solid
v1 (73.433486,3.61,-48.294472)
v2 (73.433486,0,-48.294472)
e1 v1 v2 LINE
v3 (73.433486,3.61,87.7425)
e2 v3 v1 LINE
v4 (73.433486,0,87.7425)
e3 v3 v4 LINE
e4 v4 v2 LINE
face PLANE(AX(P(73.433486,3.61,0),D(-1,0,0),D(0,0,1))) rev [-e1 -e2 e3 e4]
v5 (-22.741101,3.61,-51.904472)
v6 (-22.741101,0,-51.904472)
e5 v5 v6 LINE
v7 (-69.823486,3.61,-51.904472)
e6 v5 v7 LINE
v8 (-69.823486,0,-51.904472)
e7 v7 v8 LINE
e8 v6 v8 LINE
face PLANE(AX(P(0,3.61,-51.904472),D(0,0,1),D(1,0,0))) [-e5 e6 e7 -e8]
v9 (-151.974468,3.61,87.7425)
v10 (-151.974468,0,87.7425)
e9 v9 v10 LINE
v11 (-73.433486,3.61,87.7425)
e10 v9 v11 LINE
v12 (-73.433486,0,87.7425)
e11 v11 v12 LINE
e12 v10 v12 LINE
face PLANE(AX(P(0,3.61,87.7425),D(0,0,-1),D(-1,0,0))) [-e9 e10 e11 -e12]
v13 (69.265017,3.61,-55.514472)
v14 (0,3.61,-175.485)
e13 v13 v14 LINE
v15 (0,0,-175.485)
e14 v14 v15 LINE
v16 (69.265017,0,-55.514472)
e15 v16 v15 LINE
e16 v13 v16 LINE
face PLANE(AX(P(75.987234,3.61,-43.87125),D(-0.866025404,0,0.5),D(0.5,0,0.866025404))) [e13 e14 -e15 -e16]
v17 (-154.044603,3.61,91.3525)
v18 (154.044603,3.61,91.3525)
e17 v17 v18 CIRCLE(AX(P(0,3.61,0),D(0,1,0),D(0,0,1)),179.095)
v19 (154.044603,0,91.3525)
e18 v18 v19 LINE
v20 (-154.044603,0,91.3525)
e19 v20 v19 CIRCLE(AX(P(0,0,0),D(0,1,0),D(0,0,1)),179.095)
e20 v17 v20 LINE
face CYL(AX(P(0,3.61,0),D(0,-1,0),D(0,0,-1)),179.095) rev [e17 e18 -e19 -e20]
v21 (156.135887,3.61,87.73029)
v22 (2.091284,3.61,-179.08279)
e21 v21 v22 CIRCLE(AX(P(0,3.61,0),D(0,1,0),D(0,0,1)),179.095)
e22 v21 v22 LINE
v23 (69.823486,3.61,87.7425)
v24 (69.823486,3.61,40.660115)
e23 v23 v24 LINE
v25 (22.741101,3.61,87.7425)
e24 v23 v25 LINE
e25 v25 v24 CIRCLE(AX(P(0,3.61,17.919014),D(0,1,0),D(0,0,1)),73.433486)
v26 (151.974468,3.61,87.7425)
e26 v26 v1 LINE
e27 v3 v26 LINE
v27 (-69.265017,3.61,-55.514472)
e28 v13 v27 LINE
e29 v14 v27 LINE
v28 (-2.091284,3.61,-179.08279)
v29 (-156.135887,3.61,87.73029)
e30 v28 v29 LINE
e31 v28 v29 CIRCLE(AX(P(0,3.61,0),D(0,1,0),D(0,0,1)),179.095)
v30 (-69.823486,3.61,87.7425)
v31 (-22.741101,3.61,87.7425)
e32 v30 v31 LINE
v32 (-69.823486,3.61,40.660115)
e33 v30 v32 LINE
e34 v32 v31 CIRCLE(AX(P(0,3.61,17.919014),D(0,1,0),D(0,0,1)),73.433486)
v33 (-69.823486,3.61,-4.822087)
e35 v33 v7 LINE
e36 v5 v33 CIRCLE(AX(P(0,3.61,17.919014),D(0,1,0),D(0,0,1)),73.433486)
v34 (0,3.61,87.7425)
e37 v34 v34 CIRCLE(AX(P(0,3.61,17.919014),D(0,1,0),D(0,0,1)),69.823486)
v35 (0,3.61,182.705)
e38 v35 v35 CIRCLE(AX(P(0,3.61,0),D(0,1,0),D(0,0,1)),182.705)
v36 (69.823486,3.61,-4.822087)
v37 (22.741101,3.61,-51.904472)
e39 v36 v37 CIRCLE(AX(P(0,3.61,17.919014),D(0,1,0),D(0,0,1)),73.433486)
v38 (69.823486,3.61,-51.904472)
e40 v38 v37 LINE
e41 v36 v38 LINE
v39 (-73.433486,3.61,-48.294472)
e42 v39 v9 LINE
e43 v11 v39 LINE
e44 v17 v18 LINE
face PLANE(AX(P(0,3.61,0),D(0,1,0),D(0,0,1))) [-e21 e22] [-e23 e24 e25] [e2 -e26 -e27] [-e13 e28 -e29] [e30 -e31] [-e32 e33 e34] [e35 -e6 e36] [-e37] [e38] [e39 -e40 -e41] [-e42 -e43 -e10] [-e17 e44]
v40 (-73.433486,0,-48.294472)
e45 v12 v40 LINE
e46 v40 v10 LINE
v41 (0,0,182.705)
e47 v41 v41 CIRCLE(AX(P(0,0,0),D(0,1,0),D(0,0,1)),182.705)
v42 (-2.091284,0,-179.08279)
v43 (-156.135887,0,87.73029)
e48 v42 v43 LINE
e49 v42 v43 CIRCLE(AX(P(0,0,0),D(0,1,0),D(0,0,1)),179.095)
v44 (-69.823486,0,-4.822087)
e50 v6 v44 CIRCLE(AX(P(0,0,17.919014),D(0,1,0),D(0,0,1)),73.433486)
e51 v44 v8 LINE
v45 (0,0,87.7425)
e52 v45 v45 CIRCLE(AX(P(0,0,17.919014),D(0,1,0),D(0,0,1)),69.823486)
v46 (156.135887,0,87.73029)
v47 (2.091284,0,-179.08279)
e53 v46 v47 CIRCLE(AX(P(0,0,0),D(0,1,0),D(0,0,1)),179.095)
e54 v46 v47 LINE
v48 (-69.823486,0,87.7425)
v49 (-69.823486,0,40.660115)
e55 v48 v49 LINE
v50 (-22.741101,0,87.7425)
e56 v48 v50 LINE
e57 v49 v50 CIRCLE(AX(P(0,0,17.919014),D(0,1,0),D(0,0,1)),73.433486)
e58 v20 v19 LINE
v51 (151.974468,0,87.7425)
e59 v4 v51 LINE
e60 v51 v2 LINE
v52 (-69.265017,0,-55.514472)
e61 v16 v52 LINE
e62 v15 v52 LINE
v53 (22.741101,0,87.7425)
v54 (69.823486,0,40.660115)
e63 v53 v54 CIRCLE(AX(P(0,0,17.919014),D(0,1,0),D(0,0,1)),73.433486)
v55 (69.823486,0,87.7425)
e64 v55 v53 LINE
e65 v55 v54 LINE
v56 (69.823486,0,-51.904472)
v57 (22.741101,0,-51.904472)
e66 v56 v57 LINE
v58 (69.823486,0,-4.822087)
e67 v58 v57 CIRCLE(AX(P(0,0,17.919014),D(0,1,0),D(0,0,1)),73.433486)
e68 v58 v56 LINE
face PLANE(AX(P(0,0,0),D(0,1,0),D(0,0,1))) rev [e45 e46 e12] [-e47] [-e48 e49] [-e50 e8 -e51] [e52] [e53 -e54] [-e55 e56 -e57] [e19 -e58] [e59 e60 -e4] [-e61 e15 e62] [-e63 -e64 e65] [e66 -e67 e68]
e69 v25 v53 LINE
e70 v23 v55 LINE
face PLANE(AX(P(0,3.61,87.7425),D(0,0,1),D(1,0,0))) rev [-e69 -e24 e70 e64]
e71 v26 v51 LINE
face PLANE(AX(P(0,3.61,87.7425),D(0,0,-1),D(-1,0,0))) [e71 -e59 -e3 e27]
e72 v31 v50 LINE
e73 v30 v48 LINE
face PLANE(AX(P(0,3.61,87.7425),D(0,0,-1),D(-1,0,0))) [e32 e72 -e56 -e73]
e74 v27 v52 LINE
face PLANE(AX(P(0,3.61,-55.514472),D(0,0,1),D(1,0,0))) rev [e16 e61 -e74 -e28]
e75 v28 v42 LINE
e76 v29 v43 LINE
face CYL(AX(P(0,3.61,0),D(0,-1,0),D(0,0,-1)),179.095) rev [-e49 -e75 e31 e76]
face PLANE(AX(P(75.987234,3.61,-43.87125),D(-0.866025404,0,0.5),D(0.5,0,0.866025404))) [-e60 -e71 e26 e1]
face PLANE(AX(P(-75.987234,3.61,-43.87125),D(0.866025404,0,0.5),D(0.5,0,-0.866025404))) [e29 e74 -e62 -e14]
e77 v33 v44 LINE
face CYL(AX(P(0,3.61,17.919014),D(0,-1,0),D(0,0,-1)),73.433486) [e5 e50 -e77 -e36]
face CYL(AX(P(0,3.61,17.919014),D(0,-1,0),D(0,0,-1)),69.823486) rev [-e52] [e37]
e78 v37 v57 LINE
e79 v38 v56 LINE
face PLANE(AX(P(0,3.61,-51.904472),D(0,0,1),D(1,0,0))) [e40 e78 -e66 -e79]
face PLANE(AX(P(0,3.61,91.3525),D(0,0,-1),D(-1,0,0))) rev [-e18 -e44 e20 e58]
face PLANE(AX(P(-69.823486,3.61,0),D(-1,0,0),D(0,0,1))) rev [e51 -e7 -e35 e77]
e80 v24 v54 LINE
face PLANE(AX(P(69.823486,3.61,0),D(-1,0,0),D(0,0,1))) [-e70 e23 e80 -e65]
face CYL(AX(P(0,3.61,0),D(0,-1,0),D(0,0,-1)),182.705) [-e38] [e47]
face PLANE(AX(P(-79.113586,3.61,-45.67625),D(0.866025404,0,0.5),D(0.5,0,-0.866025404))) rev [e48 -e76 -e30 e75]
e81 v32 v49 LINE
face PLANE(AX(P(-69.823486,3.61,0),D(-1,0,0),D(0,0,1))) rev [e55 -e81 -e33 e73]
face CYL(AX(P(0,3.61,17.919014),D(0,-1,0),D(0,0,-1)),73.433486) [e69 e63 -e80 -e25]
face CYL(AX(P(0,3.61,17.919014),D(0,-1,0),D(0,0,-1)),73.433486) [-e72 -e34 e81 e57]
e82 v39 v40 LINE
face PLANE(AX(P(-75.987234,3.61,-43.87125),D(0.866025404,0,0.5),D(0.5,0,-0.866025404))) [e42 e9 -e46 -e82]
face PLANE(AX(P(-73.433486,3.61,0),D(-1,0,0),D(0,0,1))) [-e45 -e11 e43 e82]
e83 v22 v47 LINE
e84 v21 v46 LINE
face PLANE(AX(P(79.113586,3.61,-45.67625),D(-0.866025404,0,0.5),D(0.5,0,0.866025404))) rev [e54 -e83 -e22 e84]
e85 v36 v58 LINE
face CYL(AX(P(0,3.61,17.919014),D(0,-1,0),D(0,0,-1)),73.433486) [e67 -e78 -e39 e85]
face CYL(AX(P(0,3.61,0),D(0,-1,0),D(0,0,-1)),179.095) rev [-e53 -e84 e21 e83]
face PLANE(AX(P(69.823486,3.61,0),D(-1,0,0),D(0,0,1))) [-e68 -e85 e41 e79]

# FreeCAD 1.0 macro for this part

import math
import FreeCAD as App
import Part
import Sketcher
from FreeCAD import Vector
Q = App.Units.Quantity

doc = App.newDocument("Part")
body = doc.addObject("PartDesign::Body", "Body")

# Sketch on XZ plane
sketch1 = body.newObject("Sketcher::SketchObject", "Sketch")
sketch1.AttachmentSupport = (doc.getObject("XZ_Plane"), [""])
sketch1.MapMode = "FlatFace"
sketch1.addGeometry([
    Part.Circle(Vector(0, 0, 0), Vector(0, 0, 1), 182.705),  # 0
    Part.LineSegment(Vector(-2.091284, -179.08279, 0), Vector(-156.135887, 87.73029, 0)),  # 1
    Part.ArcOfCircle(Part.Circle(Vector(0, 0, 0), Vector(0, 0, 1), 179.095), math.radians(150.669055), math.radians(269.330945)),  # 2
    Part.LineSegment(Vector(-69.823486, -4.822087, 0), Vector(-69.823486, -51.904472, 0)),  # 3
    Part.LineSegment(Vector(-69.823486, -51.904472, 0), Vector(-22.741101, -51.904472, 0)),  # 4
    Part.ArcOfCircle(Part.Circle(Vector(0, 17.919014, 0), Vector(0, 0, 1), 73.433486), math.radians(-161.959873), math.radians(-108.040127)),  # 5
    Part.LineSegment(Vector(-73.433486, -48.294472, 0), Vector(-73.433486, 87.7425, 0)),  # 6
    Part.LineSegment(Vector(-73.433486, 87.7425, 0), Vector(-151.974468, 87.7425, 0)),  # 7
    Part.LineSegment(Vector(-151.974468, 87.7425, 0), Vector(-73.433486, -48.294472, 0)),  # 8
    Part.ArcOfCircle(Part.Circle(Vector(0, 17.919014, 0), Vector(0, 0, 1), 73.433486), math.radians(108.040127), math.radians(161.959873)),  # 9
    Part.LineSegment(Vector(-22.741101, 87.7425, 0), Vector(-69.823486, 87.7425, 0)),  # 10
    Part.LineSegment(Vector(-69.823486, 87.7425, 0), Vector(-69.823486, 40.660115, 0)),  # 11
    Part.LineSegment(Vector(69.265017, -55.514472, 0), Vector(-69.265017, -55.514472, 0)),  # 12
    Part.LineSegment(Vector(-69.265017, -55.514472, 0), Vector(0, -175.485, 0)),  # 13
    Part.LineSegment(Vector(0, -175.485, 0), Vector(69.265017, -55.514472, 0)),  # 14
    Part.ArcOfCircle(Part.Circle(Vector(0, 17.919014, 0), Vector(0, 0, 1), 73.433486), math.radians(-71.959873), math.radians(-18.040127)),  # 15
    Part.LineSegment(Vector(22.741101, -51.904472, 0), Vector(69.823486, -51.904472, 0)),  # 16
    Part.LineSegment(Vector(69.823486, -51.904472, 0), Vector(69.823486, -4.822087, 0)),  # 17
    Part.LineSegment(Vector(156.135887, 87.73029, 0), Vector(2.091284, -179.08279, 0)),  # 18
    Part.ArcOfCircle(Part.Circle(Vector(0, 0, 0), Vector(0, 0, 1), 179.095), math.radians(-89.330945), math.radians(29.330945)),  # 19
    Part.Circle(Vector(0, 17.919014, 0), Vector(0, 0, 1), 69.823486),  # 20
    Part.ArcOfCircle(Part.Circle(Vector(0, 17.919014, 0), Vector(0, 0, 1), 73.433486), math.radians(18.040127), math.radians(71.959873)),  # 21
    Part.LineSegment(Vector(69.823486, 40.660115, 0), Vector(69.823486, 87.7425, 0)),  # 22
    Part.LineSegment(Vector(69.823486, 87.7425, 0), Vector(22.741101, 87.7425, 0)),  # 23
    Part.LineSegment(Vector(-154.044603, 91.3525, 0), Vector(154.044603, 91.3525, 0)),  # 24
    Part.ArcOfCircle(Part.Circle(Vector(0, 0, 0), Vector(0, 0, 1), 179.095), math.radians(30.669055), math.radians(149.330945)),  # 25
    Part.LineSegment(Vector(73.433486, -48.294472, 0), Vector(151.974468, 87.7425, 0)),  # 26
    Part.LineSegment(Vector(151.974468, 87.7425, 0), Vector(73.433486, 87.7425, 0)),  # 27
    Part.LineSegment(Vector(73.433486, 87.7425, 0), Vector(73.433486, -48.294472, 0)),  # 28
], False)
sketch1.addConstraint([
    Sketcher.Constraint("Coincident", 1, 1, 2, 2),
    Sketcher.Constraint("Coincident", 2, 1, 1, 2),
    Sketcher.Constraint("Coincident", 3, 2, 4, 1),
    Sketcher.Constraint("Coincident", 4, 2, 5, 2),
    Sketcher.Constraint("Coincident", 5, 1, 3, 1),
    Sketcher.Constraint("Coincident", 6, 2, 7, 1),
    Sketcher.Constraint("Coincident", 7, 2, 8, 1),
    Sketcher.Constraint("Coincident", 8, 2, 6, 1),
    Sketcher.Constraint("Coincident", 9, 1, 10, 1),
    Sketcher.Constraint("Coincident", 10, 2, 11, 1),
    Sketcher.Constraint("Coincident", 11, 2, 9, 2),
    Sketcher.Constraint("Coincident", 12, 2, 13, 1),
    Sketcher.Constraint("Coincident", 13, 2, 14, 1),
    Sketcher.Constraint("Coincident", 14, 2, 12, 1),
    Sketcher.Constraint("Coincident", 15, 1, 16, 1),
    Sketcher.Constraint("Coincident", 16, 2, 17, 1),
    Sketcher.Constraint("Coincident", 17, 2, 15, 2),
    Sketcher.Constraint("Coincident", 18, 1, 19, 2),
    Sketcher.Constraint("Coincident", 19, 1, 18, 2),
    Sketcher.Constraint("Coincident", 21, 1, 22, 1),
    Sketcher.Constraint("Coincident", 22, 2, 23, 1),
    Sketcher.Constraint("Coincident", 23, 2, 21, 2),
    Sketcher.Constraint("Coincident", 24, 1, 25, 2),
    Sketcher.Constraint("Coincident", 25, 1, 24, 2),
    Sketcher.Constraint("Coincident", 26, 2, 27, 1),
    Sketcher.Constraint("Coincident", 27, 2, 28, 1),
    Sketcher.Constraint("Coincident", 28, 2, 26, 1),
    Sketcher.Constraint("Vertical", 3),
    Sketcher.Constraint("Horizontal", 4),
    Sketcher.Constraint("Vertical", 6),
    Sketcher.Constraint("Horizontal", 7),
    Sketcher.Constraint("Horizontal", 10),
    Sketcher.Constraint("Vertical", 11),
    Sketcher.Constraint("Horizontal", 12),
    Sketcher.Constraint("Horizontal", 16),
    Sketcher.Constraint("Vertical", 17),
    Sketcher.Constraint("Vertical", 22),
    Sketcher.Constraint("Horizontal", 23),
    Sketcher.Constraint("Horizontal", 24),
    Sketcher.Constraint("Horizontal", 27),
    Sketcher.Constraint("Vertical", 28),
    Sketcher.Constraint("Coincident", 0, 3, -1, 1),
    Sketcher.Constraint("Coincident", 2, 3, -1, 1),
    Sketcher.Constraint("Coincident", 19, 3, -1, 1),
    Sketcher.Constraint("Coincident", 25, 3, -1, 1),
    Sketcher.Constraint("Coincident", 9, 3, 5, 3),
    Sketcher.Constraint("Coincident", 15, 3, 5, 3),
    Sketcher.Constraint("Coincident", 20, 3, 5, 3),
    Sketcher.Constraint("Coincident", 21, 3, 5, 3),
    Sketcher.Constraint("Equal", 5, 9),
    Sketcher.Constraint("Equal", 9, 15),
    Sketcher.Constraint("Equal", 2, 19),
    Sketcher.Constraint("Equal", 15, 21),
    Sketcher.Constraint("Equal", 19, 25),
    Sketcher.Constraint("Symmetric", 4, 2, 15, 1, -2),
    Sketcher.Constraint("Symmetric", 10, 2, 22, 2, -2),
    Sketcher.Constraint("Symmetric", 7, 2, 26, 2, -2),
    Sketcher.Constraint("Symmetric", 8, 2, 28, 2, -2),
    Sketcher.Constraint("PointOnObject", 13, 2, -2),
    Sketcher.Constraint("Parallel", 1, 8),
    Sketcher.Constraint("Parallel", 8, 13),
    Sketcher.Constraint("Parallel", 14, 18),
    Sketcher.Constraint("Parallel", 18, 26),
    Sketcher.Constraint("Horizontal", 7, 2, 9, 1),
    Sketcher.Constraint("Horizontal", 5, 1, 17, 2),
    Sketcher.Constraint("Horizontal", 2, 1, 18, 1),
    Sketcher.Constraint("Vertical", 4, 2, 9, 1),
    Sketcher.Constraint("Vertical", 5, 1, 10, 2),
    Sketcher.Constraint("Equal", 23, 3),
    Sketcher.Constraint("Diameter", 0, 365.41),
    Sketcher.Constraint("Angle", 1, Q("120 deg")),
    Sketcher.Constraint("Radius", 2, 179.095),
    Sketcher.Constraint("Diameter", 20, 139.646972),
    Sketcher.Constraint("DistanceX", 6, 2, 5, 1, 3.61),
    Sketcher.Constraint("DistanceY", 3, 2, 8, 2, 3.61),
    Sketcher.Constraint("DistanceY", 12, 2, 3, 2, 3.61),
    Sketcher.Constraint("DistanceY", 7, 2, 24, 1, 3.61),
    Sketcher.Constraint("DistanceY", 13, 2, -1, 1, 175.485),
    Sketcher.Constraint("Radius", 5, 73.433486),
    Sketcher.Constraint("DistanceY", 6, 1, 6, 2, 136.036972),
    Sketcher.Constraint("DistanceY", -1, 1, 6, 2, 87.7425),
    Sketcher.Constraint("DistanceX", 2, 1, 6, 2, 82.702401),
])
pad1 = body.newObject("PartDesign::Pad", "Pad")
pad1.Profile = sketch1
pad1.Length = 3.61
pad1.Reversed = True

doc.recompute()
